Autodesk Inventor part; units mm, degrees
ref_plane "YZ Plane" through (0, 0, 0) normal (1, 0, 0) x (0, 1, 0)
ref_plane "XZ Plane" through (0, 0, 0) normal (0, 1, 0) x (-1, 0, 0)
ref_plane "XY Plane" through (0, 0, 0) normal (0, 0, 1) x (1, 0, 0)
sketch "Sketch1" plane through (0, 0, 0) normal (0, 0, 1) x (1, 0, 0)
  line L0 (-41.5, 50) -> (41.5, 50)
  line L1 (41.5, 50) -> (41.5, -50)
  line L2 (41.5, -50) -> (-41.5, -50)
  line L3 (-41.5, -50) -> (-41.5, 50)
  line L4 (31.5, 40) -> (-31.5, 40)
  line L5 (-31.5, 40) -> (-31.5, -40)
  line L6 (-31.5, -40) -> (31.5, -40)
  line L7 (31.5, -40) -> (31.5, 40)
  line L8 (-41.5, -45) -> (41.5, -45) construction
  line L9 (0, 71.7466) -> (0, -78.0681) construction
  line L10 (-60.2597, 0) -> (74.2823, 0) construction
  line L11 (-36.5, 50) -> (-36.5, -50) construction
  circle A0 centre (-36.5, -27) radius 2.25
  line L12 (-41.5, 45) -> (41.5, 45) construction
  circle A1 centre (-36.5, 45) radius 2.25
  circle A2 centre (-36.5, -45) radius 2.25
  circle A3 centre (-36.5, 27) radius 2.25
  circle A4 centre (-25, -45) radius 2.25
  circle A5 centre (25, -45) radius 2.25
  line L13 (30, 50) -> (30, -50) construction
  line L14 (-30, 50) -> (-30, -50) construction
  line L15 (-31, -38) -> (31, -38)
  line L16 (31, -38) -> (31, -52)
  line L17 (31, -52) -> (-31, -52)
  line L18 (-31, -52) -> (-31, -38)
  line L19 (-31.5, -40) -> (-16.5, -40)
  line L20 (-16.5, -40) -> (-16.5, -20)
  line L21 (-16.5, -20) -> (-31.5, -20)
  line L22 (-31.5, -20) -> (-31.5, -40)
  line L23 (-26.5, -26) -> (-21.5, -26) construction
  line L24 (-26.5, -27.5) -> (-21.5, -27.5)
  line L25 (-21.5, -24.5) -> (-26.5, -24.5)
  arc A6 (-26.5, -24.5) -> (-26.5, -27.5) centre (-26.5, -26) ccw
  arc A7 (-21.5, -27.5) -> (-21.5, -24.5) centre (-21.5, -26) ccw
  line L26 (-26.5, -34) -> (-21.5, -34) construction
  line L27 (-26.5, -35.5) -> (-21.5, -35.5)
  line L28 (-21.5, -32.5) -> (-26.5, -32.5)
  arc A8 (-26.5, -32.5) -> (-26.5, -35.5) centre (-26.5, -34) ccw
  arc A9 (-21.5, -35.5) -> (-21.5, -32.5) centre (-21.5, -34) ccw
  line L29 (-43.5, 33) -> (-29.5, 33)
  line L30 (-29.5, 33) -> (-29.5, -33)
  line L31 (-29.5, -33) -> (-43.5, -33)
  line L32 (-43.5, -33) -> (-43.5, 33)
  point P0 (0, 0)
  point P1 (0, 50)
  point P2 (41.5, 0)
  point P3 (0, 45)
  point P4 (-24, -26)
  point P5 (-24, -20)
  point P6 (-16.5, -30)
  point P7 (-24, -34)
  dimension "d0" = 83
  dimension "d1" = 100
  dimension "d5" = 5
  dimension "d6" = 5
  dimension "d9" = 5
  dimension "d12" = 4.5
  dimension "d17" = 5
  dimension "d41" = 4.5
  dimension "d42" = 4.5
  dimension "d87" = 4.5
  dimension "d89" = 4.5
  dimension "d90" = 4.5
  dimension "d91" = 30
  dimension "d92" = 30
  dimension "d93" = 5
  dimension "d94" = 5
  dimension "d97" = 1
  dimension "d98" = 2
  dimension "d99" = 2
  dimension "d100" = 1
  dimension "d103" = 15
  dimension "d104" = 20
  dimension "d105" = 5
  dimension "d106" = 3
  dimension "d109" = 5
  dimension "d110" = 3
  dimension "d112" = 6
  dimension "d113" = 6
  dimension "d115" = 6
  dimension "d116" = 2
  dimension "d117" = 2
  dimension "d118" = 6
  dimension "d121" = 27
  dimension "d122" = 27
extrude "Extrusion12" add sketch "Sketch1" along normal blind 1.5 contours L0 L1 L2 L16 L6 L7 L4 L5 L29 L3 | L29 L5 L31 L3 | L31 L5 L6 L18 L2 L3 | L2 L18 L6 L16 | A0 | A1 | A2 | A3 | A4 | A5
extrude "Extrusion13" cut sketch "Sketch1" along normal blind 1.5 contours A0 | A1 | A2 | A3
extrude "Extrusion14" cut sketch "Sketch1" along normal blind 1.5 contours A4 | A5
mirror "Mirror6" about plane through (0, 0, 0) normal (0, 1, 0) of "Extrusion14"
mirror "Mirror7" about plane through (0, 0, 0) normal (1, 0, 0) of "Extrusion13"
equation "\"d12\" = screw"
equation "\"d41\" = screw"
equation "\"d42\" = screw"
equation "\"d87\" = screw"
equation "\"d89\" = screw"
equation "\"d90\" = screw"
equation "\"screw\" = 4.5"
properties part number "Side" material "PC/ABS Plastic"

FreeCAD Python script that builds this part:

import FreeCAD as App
import Part
import Sketcher
from FreeCAD import Vector

doc = App.newDocument("Part")
body = doc.addObject("PartDesign::Body", "Body")

# Sketch on XY plane
sketch1 = body.newObject("Sketcher::SketchObject", "Sketch")
sketch1.AttachmentSupport = (doc.getObject("XY_Plane"), [""])
sketch1.MapMode = "FlatFace"
sketch1.addGeometry([
    Part.LineSegment(Vector(42, 50, 0), Vector(-42, 50, 0)),  # 0
    Part.LineSegment(Vector(-42, 50, 0), Vector(-42, -50, 0)),  # 1
    Part.LineSegment(Vector(-42, -50, 0), Vector(42, -50, 0)),  # 2
    Part.LineSegment(Vector(42, -50, 0), Vector(42, 50, 0)),  # 3
    Part.LineSegment(Vector(32, -40, 0), Vector(-32, -40, 0)),  # 4
    Part.LineSegment(Vector(-32, -40, 0), Vector(-32, 40, 0)),  # 5
    Part.LineSegment(Vector(-32, 40, 0), Vector(32, 40, 0)),  # 6
    Part.LineSegment(Vector(32, 40, 0), Vector(32, -40, 0)),  # 7
], False)
sketch1.addConstraint([
    Sketcher.Constraint("Coincident", 0, 2, 1, 1),
    Sketcher.Constraint("Coincident", 1, 2, 2, 1),
    Sketcher.Constraint("Coincident", 2, 2, 3, 1),
    Sketcher.Constraint("Coincident", 3, 2, 0, 1),
    Sketcher.Constraint("Coincident", 4, 2, 5, 1),
    Sketcher.Constraint("Coincident", 5, 2, 6, 1),
    Sketcher.Constraint("Coincident", 6, 2, 7, 1),
    Sketcher.Constraint("Coincident", 7, 2, 4, 1),
    Sketcher.Constraint("Horizontal", 0),
    Sketcher.Constraint("Vertical", 1),
    Sketcher.Constraint("Horizontal", 2),
    Sketcher.Constraint("Vertical", 3),
    Sketcher.Constraint("Horizontal", 4),
    Sketcher.Constraint("Vertical", 5),
    Sketcher.Constraint("Horizontal", 6),
    Sketcher.Constraint("Vertical", 7),
    Sketcher.Constraint("Symmetric", 0, 2, 2, 2, -1, 1),
    Sketcher.Constraint("Symmetric", 4, 2, 6, 2, -1, 1),
    Sketcher.Constraint("DistanceX", 0, 2, 0, 1, 83.0),
    Sketcher.Constraint("DistanceY", 1, 2, 1, 1, 100.0),
    Sketcher.Constraint("DistanceX", 4, 2, 4, 1, 63.0),
    Sketcher.Constraint("DistanceY", 5, 1, 5, 2, 80.0),
])
pad1 = body.newObject("PartDesign::Pad", "Pad")
pad1.Profile = sketch1
pad1.Length = 1.5

# Sketch on XY plane
sketch2 = body.newObject("Sketcher::SketchObject", "Sketch001")
sketch2.AttachmentSupport = (doc.getObject("XY_Plane"), [""])
sketch2.MapMode = "FlatFace"
sketch2.addGeometry([
    Part.Circle(Vector(-36.5, -27, 0), Vector(0, 0, 1), 2.2),
    Part.Circle(Vector(-36.5, 45, 0), Vector(0, 0, 1), 2.2),
    Part.Circle(Vector(-36.5, -45, 0), Vector(0, 0, 1), 2.2),
    Part.Circle(Vector(-36.5, 27, 0), Vector(0, 0, 1), 2.2),
], False)
sketch2.addConstraint([
    Sketcher.Constraint("Equal", 0, 1),
    Sketcher.Constraint("Equal", 1, 2),
    Sketcher.Constraint("Equal", 2, 3),
    Sketcher.Constraint("Symmetric", 1, 3, 2, 3, -1),
    Sketcher.Constraint("Symmetric", 0, 3, 3, 3, -1),
    Sketcher.Constraint("Vertical", 0, 3, 1, 3),
    Sketcher.Constraint("Diameter", 0, 4.5),
    Sketcher.Constraint("DistanceY", 0, 3, -1, 1, 27.0),
    Sketcher.Constraint("DistanceY", -1, 1, 1, 3, 45.0),
    Sketcher.Constraint("DistanceX", 0, 3, -1, 1, 36.5),
])
pocket1 = body.newObject("PartDesign::Pocket", "Pocket")
pocket1.Profile = sketch2
pocket1.Length = 1.5
pocket1.Reversed = True

# Sketch on XY plane
sketch3 = body.newObject("Sketcher::SketchObject", "Sketch002")
sketch3.AttachmentSupport = (doc.getObject("XY_Plane"), [""])
sketch3.MapMode = "FlatFace"
sketch3.addGeometry([
    Part.Circle(Vector(-25, -45, 0), Vector(0, 0, 1), 2.2),
    Part.Circle(Vector(25, -45, 0), Vector(0, 0, 1), 2.2),
], False)
sketch3.addConstraint([
    Sketcher.Constraint("Equal", 0, 1),
    Sketcher.Constraint("Symmetric", 0, 3, 1, 3, -2),
    Sketcher.Constraint("Diameter", 0, 4.5),
    Sketcher.Constraint("DistanceX", 0, 3, -1, 1, 25.0),
    Sketcher.Constraint("DistanceY", 0, 3, -1, 1, 45.0),
])
pocket2 = body.newObject("PartDesign::Pocket", "Pocket001")
pocket2.Profile = sketch3
pocket2.Length = 1.5
pocket2.Reversed = True
doc.recompute()

mirrored = body.newObject("PartDesign::Mirrored", "Mirrored")
mirrored.Originals = [pocket2]
mirrored.MirrorPlane = (doc.getObject("XZ_Plane"), [""])
body.Tip = mirrored
doc.recompute()

mirrored2 = body.newObject("PartDesign::Mirrored", "Mirrored001")
mirrored2.Originals = [pocket1]
mirrored2.MirrorPlane = (doc.getObject("YZ_Plane"), [""])
body.Tip = mirrored2

doc.recompute()
